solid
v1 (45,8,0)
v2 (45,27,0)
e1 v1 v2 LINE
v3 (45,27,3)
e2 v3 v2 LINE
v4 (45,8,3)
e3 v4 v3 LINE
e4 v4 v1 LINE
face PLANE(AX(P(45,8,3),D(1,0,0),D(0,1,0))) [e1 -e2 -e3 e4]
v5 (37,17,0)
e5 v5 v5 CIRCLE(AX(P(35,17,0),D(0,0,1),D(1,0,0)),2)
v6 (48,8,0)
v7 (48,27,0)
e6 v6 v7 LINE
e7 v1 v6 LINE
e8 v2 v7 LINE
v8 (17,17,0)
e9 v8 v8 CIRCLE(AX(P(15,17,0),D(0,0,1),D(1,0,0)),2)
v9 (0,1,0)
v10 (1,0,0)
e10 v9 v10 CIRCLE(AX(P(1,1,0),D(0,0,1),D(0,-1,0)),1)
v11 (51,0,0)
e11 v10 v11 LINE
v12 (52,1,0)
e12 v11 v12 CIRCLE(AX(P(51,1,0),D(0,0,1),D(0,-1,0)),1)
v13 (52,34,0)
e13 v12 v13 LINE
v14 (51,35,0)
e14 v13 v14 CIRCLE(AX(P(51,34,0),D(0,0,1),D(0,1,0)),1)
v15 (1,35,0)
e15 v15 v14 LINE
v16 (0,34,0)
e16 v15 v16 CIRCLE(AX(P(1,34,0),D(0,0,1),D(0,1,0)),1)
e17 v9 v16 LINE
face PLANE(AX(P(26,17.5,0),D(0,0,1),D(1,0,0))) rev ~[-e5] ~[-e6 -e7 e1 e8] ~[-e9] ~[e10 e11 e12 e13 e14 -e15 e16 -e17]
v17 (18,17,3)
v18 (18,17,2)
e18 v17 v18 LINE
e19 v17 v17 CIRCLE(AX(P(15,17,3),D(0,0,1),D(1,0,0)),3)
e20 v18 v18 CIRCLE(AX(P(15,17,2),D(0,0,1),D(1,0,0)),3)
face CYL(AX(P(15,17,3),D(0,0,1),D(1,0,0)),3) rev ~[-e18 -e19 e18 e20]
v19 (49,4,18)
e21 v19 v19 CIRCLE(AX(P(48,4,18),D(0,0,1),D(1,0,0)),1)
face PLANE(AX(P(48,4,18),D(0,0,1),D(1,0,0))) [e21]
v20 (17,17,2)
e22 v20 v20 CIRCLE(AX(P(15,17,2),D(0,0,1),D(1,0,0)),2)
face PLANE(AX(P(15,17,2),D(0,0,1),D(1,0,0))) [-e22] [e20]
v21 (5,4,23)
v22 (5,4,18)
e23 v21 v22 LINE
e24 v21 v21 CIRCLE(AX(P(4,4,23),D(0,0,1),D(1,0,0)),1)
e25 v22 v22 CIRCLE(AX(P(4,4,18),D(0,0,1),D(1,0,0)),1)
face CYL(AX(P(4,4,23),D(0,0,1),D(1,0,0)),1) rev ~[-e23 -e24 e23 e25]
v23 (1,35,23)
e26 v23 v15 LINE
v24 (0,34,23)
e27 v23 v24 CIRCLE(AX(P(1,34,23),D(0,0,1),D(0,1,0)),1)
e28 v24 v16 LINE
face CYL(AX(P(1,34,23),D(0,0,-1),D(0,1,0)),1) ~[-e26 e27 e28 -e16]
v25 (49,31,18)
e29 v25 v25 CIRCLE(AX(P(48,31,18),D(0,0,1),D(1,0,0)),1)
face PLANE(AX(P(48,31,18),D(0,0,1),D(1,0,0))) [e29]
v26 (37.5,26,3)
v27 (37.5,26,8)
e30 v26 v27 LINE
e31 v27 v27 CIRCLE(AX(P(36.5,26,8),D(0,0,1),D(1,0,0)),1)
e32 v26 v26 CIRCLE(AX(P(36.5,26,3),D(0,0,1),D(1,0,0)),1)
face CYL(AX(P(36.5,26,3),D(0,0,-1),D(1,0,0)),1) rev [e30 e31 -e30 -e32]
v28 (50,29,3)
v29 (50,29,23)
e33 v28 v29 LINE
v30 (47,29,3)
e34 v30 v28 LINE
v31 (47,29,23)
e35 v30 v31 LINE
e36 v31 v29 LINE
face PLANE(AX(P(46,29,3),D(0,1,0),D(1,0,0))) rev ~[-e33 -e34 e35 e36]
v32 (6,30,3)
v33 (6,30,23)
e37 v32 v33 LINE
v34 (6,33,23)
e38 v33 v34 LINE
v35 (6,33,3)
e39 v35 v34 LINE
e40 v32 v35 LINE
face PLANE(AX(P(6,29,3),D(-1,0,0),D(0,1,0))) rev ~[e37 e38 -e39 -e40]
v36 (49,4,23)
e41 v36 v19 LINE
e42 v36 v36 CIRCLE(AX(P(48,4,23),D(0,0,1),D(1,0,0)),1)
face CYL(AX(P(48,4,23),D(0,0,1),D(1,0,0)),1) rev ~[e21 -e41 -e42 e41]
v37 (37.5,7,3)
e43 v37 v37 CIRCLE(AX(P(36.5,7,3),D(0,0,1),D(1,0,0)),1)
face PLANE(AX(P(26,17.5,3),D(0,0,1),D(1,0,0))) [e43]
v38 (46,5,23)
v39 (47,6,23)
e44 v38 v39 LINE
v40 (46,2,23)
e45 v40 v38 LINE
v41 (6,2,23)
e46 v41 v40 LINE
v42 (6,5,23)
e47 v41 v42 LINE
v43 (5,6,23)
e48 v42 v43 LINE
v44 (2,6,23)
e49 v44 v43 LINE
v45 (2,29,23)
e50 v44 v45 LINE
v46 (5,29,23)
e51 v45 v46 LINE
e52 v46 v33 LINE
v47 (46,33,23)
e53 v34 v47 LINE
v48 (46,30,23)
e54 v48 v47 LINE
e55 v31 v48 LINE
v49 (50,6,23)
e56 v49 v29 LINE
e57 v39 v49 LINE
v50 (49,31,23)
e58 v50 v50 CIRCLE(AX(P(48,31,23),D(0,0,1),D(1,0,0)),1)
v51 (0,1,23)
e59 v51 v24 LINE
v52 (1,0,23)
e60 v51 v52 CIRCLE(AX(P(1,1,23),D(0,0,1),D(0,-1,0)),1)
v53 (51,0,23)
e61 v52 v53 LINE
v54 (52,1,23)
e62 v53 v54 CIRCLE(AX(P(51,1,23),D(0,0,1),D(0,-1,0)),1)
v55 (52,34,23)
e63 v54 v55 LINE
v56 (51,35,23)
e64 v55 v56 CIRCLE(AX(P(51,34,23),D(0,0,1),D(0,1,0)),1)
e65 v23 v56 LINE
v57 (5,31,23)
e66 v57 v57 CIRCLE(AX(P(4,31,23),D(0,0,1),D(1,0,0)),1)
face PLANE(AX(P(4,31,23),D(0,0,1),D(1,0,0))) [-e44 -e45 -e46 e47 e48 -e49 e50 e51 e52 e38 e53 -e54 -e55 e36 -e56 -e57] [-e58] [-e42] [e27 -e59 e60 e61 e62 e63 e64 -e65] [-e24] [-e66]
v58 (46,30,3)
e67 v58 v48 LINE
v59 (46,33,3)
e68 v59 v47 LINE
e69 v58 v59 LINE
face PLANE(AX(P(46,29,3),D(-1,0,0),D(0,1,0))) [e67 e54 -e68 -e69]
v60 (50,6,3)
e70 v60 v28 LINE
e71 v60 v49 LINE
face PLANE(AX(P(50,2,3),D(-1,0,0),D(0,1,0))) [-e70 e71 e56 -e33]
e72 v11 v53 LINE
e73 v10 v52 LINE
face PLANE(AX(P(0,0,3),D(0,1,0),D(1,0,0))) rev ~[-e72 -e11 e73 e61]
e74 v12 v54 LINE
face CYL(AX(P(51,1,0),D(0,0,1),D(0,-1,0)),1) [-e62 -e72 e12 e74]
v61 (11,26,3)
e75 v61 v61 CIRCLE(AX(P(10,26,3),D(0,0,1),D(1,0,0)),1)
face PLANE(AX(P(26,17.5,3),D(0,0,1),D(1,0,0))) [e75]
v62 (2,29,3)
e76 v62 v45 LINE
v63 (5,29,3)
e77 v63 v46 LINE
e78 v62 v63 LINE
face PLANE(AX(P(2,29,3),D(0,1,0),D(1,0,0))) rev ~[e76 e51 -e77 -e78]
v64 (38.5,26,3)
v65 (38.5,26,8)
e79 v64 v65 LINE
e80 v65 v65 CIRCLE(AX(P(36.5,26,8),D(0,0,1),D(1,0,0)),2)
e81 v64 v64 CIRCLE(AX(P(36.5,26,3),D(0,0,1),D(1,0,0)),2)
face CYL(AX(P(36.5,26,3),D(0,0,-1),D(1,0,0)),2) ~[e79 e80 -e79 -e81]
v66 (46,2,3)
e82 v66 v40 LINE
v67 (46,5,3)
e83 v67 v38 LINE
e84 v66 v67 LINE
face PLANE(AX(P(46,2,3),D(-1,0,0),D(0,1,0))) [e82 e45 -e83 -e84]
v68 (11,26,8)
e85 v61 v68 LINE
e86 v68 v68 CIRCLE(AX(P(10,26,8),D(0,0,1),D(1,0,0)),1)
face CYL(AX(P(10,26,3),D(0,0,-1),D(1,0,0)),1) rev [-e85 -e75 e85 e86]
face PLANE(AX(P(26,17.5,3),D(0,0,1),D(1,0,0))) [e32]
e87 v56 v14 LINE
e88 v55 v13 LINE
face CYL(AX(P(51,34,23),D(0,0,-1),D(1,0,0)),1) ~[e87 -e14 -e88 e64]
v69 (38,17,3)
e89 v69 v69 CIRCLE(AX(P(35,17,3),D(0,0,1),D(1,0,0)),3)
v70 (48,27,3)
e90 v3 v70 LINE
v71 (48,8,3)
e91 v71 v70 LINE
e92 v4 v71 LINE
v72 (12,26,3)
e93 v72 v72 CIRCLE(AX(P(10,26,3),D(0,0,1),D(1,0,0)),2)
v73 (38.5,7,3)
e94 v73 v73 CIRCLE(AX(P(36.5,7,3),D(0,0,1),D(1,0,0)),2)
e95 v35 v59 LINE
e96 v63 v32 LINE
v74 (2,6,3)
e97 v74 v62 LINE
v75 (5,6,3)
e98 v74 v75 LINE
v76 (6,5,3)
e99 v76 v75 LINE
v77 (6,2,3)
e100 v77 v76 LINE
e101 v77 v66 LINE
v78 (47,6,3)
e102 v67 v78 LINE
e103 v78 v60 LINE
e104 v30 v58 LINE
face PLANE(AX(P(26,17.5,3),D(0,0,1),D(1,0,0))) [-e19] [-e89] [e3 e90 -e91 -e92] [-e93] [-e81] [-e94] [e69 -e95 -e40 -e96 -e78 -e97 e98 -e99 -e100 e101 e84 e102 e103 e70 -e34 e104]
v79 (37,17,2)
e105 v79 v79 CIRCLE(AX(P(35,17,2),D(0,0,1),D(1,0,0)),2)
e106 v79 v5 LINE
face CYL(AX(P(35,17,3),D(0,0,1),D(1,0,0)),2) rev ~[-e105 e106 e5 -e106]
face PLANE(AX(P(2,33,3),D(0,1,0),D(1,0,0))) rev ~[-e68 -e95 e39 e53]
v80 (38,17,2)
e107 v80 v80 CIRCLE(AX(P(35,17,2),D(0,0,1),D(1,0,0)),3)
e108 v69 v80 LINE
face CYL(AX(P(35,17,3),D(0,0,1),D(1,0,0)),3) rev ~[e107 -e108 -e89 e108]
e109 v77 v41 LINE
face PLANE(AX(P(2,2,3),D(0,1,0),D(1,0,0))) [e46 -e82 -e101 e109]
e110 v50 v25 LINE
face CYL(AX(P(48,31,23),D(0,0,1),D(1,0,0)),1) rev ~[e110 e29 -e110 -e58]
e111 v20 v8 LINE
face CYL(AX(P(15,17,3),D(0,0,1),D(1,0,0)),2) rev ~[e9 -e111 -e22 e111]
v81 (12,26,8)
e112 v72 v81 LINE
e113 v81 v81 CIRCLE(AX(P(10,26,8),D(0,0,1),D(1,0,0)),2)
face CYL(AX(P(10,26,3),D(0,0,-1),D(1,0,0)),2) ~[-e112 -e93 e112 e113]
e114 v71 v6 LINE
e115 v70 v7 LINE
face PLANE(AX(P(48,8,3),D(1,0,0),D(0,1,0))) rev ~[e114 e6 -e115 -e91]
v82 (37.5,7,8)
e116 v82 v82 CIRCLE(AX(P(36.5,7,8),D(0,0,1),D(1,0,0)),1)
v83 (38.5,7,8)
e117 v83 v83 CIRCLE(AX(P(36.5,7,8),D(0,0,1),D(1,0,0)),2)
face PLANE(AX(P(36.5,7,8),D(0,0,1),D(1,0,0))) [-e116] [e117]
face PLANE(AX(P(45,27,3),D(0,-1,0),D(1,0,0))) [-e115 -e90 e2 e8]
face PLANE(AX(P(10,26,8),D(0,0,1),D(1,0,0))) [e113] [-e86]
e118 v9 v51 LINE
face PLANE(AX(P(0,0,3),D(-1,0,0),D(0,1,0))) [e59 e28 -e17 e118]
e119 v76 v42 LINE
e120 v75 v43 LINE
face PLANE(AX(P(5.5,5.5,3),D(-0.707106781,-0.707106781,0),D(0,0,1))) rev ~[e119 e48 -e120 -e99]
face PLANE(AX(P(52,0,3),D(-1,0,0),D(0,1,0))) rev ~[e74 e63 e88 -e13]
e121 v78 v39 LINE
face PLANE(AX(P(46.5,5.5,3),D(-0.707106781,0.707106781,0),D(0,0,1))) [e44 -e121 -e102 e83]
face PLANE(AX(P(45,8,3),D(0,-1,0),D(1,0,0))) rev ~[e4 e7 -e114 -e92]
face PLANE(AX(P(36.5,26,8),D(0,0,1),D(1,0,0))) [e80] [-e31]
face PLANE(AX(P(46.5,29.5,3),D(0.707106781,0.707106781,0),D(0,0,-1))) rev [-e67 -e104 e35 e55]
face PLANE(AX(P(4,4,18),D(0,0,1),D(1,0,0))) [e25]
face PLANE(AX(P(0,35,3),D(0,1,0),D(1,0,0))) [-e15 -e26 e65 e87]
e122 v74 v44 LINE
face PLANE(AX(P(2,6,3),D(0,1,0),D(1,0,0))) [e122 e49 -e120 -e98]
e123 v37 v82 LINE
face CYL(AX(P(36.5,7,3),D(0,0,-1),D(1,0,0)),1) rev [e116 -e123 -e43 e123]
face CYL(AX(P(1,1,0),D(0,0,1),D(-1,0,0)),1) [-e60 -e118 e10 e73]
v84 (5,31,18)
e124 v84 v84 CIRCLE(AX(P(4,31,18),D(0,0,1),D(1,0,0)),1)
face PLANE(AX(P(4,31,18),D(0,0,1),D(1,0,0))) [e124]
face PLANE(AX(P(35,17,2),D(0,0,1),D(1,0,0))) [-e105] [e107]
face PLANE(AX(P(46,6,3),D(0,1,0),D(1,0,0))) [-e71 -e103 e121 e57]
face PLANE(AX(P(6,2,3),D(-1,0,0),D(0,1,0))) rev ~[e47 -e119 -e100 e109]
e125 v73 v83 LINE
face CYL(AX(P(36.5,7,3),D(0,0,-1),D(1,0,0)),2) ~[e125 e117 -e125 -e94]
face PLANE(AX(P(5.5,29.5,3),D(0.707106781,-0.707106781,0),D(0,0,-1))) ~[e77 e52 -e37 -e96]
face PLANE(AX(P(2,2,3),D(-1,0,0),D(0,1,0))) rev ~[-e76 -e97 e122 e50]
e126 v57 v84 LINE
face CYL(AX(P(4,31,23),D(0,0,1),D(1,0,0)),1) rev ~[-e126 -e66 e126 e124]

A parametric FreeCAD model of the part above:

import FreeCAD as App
import Part
import Sketcher

V = App.Vector


def edges_at(feature, points):
    """Names of the edges that pass closest to the given points."""
    edges = feature.Shape.Edges
    near = lambda p: min(range(len(edges)), key=lambda i: edges[i].distToShape(Part.Vertex(*p))[0])
    return sorted({f"Edge{near(p) + 1}" for p in points})


def add_polygon(sketch, points):
    """Adds a closed chain of lines whose ends are joined by coincident constraints."""
    first, n = sketch.GeometryCount, len(points)
    for a, b in zip(points, points[1:] + points[:1]):
        sketch.addGeometry(Part.LineSegment(App.Vector(*a, 0), App.Vector(*b, 0)), False)
    for i in range(n):
        sketch.addConstraint(Sketcher.Constraint("Coincident", first + i, 2, first + (i + 1) % n, 1))

doc = App.newDocument("Part")
body = doc.addObject("PartDesign::Body", "Body")

# Sketch on XY plane
sketch1 = body.newObject("Sketcher::SketchObject", "Sketch")
sketch1.AttachmentSupport = (doc.getObject("XY_Plane"), [""])
sketch1.MapMode = "FlatFace"
add_polygon(sketch1, [(0, 35), (0, 0), (52, 0), (52, 35)])  # lines 0-3
sketch1.addConstraint([
    Sketcher.Constraint("Vertical", 0),
    Sketcher.Constraint("Horizontal", 1),
    Sketcher.Constraint("Vertical", 2),
    Sketcher.Constraint("Horizontal", 3),
    Sketcher.Constraint("Coincident", 0, 2, -1, 1),
    Sketcher.Constraint("DistanceX", 1, 1, 1, 2, 52.0),
    Sketcher.Constraint("DistanceY", 0, 2, 0, 1, 35.0),
])
pad1 = body.newObject("PartDesign::Pad", "Pad")
pad1.Profile = sketch1
pad1.Length = 3

# Sketch on XY plane
sketch2 = body.newObject("Sketcher::SketchObject", "Sketch001")
sketch2.AttachmentSupport = (doc.getObject("XY_Plane"), [""])
sketch2.MapMode = "FlatFace"
sketch2.AttachmentOffset = App.Placement(V(0, 0, 3), App.Rotation())
add_polygon(sketch2, [(0, 35), (0, 0), (52, 0), (52, 35)])  # lines 0-3
add_polygon(sketch2, [(50, 2), (2, 2), (2, 33), (50, 33)])  # lines 4-7
sketch2.addConstraint([
    Sketcher.Constraint("Vertical", 0),
    Sketcher.Constraint("Horizontal", 1),
    Sketcher.Constraint("Vertical", 2),
    Sketcher.Constraint("Horizontal", 3),
    Sketcher.Constraint("Horizontal", 4),
    Sketcher.Constraint("Vertical", 5),
    Sketcher.Constraint("Horizontal", 6),
    Sketcher.Constraint("Vertical", 7),
    Sketcher.Constraint("Coincident", 0, 2, -1, 1),
    Sketcher.Constraint("DistanceX", 1, 1, 1, 2, 52.0),
    Sketcher.Constraint("DistanceX", 4, 2, 4, 1, 48.0),
    Sketcher.Constraint("DistanceY", 0, 2, 0, 1, 35.0),
    Sketcher.Constraint("DistanceY", 5, 1, 5, 2, 31.0),
    Sketcher.Constraint("DistanceX", -1, 1, 4, 2, 2.0),
    Sketcher.Constraint("DistanceY", -1, 1, 4, 2, 2.0),
])
pad2 = body.newObject("PartDesign::Pad", "Pad001")
pad2.Profile = sketch2
pad2.Length = 20

# Sketch on XY plane
sketch3 = body.newObject("Sketcher::SketchObject", "Sketch002")
sketch3.AttachmentSupport = (doc.getObject("XY_Plane"), [""])
sketch3.MapMode = "FlatFace"
sketch3.AttachmentOffset = App.Placement(V(0, 0, 3), App.Rotation())
add_polygon(sketch3, [(2, 33), (2, 29), (6, 29), (6, 33)])  # lines 0-3
add_polygon(sketch3, [(46, 33), (46, 29), (50, 29), (50, 33)])  # lines 4-7
add_polygon(sketch3, [(2, 6), (2, 2), (6, 2), (6, 6)])  # lines 8-11
add_polygon(sketch3, [(46, 6), (46, 2), (50, 2), (50, 6)])  # lines 12-15
sketch3.addConstraint([
    Sketcher.Constraint("Vertical", 0),
    Sketcher.Constraint("Horizontal", 1),
    Sketcher.Constraint("Vertical", 2),
    Sketcher.Constraint("Horizontal", 3),
    Sketcher.Constraint("Vertical", 4),
    Sketcher.Constraint("Horizontal", 5),
    Sketcher.Constraint("Vertical", 6),
    Sketcher.Constraint("Horizontal", 7),
    Sketcher.Constraint("Vertical", 8),
    Sketcher.Constraint("Horizontal", 9),
    Sketcher.Constraint("Vertical", 10),
    Sketcher.Constraint("Horizontal", 11),
    Sketcher.Constraint("Vertical", 12),
    Sketcher.Constraint("Horizontal", 13),
    Sketcher.Constraint("Vertical", 14),
    Sketcher.Constraint("Horizontal", 15),
    Sketcher.Constraint("Horizontal", 1, 2, 4, 2),
    Sketcher.Constraint("Horizontal", 3, 2, 6, 2),
    Sketcher.Constraint("Horizontal", 9, 2, 12, 2),
    Sketcher.Constraint("Horizontal", 11, 2, 14, 2),
    Sketcher.Constraint("Vertical", 3, 2, 8, 2),
    Sketcher.Constraint("Vertical", 2, 2, 9, 2),
    Sketcher.Constraint("Vertical", 7, 2, 12, 2),
    Sketcher.Constraint("Vertical", 6, 2, 13, 2),
    Sketcher.Constraint("Equal", 3, 5),
    Sketcher.Constraint("Equal", 15, 0),
    Sketcher.Constraint("Equal", 6, 8),
    Sketcher.Constraint("DistanceX", 1, 1, 1, 2, 4.0),
    Sketcher.Constraint("DistanceX", -1, 1, 0, 2, 2.0),
    Sketcher.Constraint("DistanceY", -1, 1, 0, 2, 29.0),
    Sketcher.Constraint("DistanceX", -1, 1, 4, 2, 46.0),
    Sketcher.Constraint("DistanceY", -1, 1, 8, 2, 2.0),
])
pad3 = body.newObject("PartDesign::Pad", "Pad002")
pad3.Profile = sketch3
pad3.Length = 20

# Sketch on XY plane
sketch4 = body.newObject("Sketcher::SketchObject", "Sketch003")
sketch4.AttachmentSupport = (doc.getObject("XY_Plane"), [""])
sketch4.MapMode = "FlatFace"
sketch4.AttachmentOffset = App.Placement(V(0, 0, 3), App.Rotation())
sketch4.addGeometry([
    Part.Circle(V(36.5, 26, 0), V(0, 0, 1), 2),  # 0
    Part.Circle(V(36.5, 26, 0), V(0, 0, 1), 1),  # 1
    Part.Circle(V(36.5, 7, 0), V(0, 0, 1), 2),  # 2
    Part.Circle(V(36.5, 7, 0), V(0, 0, 1), 1),  # 3
    Part.Circle(V(10, 26, 0), V(0, 0, 1), 2),  # 4
    Part.Circle(V(10, 26, 0), V(0, 0, 1), 1),  # 5
], False)
sketch4.addConstraint([
    Sketcher.Constraint("Coincident", 1, 3, 0, 3),
    Sketcher.Constraint("Coincident", 3, 3, 2, 3),
    Sketcher.Constraint("Coincident", 5, 3, 4, 3),
    Sketcher.Constraint("Equal", 0, 2),
    Sketcher.Constraint("Equal", 1, 3),
    Sketcher.Constraint("Equal", 2, 4),
    Sketcher.Constraint("Equal", 3, 5),
    Sketcher.Constraint("Horizontal", 1, 3, 4, 3),
    Sketcher.Constraint("Vertical", 1, 3, 2, 3),
    Sketcher.Constraint("Diameter", 0, 4.0),
    Sketcher.Constraint("Diameter", 1, 2.0),
    Sketcher.Constraint("DistanceY", -1, 1, 0, 3, 26.0),
    Sketcher.Constraint("DistanceY", -1, 1, 2, 3, 7.0),
    Sketcher.Constraint("DistanceX", -1, 1, 4, 3, 10.0),
    Sketcher.Constraint("DistanceX", -1, 1, 0, 3, 36.5),
])
pad4 = body.newObject("PartDesign::Pad", "Pad003")
pad4.Profile = sketch4
pad4.Length = 5

# Sketch on XY plane
sketch5 = body.newObject("Sketcher::SketchObject", "Sketch004")
sketch5.AttachmentSupport = (doc.getObject("XY_Plane"), [""])
sketch5.MapMode = "FlatFace"
sketch5.AttachmentOffset = App.Placement(V(0, 0, 3), App.Rotation())
add_polygon(sketch5, [(45, 27), (45, 8), (48, 8), (48, 27)])  # lines 0-3
sketch5.addConstraint([
    Sketcher.Constraint("Vertical", 0),
    Sketcher.Constraint("Horizontal", 1),
    Sketcher.Constraint("Vertical", 2),
    Sketcher.Constraint("Horizontal", 3),
    Sketcher.Constraint("DistanceX", 1, 1, 1, 2, 3.0),
    Sketcher.Constraint("DistanceY", 0, 2, 0, 1, 19.0),
    Sketcher.Constraint("DistanceX", -1, 1, 0, 2, 45.0),
    Sketcher.Constraint("DistanceY", -1, 1, 0, 2, 8.0),
])
pocket1 = body.newObject("PartDesign::Pocket", "Pocket")
pocket1.Profile = sketch5
pocket1.Length = 3

# Sketch on XY plane
sketch6 = body.newObject("Sketcher::SketchObject", "Sketch005")
sketch6.AttachmentSupport = (doc.getObject("XY_Plane"), [""])
sketch6.MapMode = "FlatFace"
sketch6.AttachmentOffset = App.Placement(V(0, 0, 23), App.Rotation())
sketch6.addGeometry([
    Part.Circle(V(4, 31, 0), V(0, 0, 1), 1),
    Part.Circle(V(48, 31, 0), V(0, 0, 1), 1),
    Part.Circle(V(4, 4, 0), V(0, 0, 1), 1),
    Part.Circle(V(48, 4, 0), V(0, 0, 1), 1),
], False)
sketch6.addConstraint([
    Sketcher.Constraint("Equal", 0, 1),
    Sketcher.Constraint("Equal", 1, 2),
    Sketcher.Constraint("Equal", 2, 3),
    Sketcher.Constraint("Horizontal", 0, 3, 1, 3),
    Sketcher.Constraint("Horizontal", 2, 3, 3, 3),
    Sketcher.Constraint("Vertical", 0, 3, 2, 3),
    Sketcher.Constraint("Vertical", 1, 3, 3, 3),
    Sketcher.Constraint("Diameter", 0, 2.0),
    Sketcher.Constraint("DistanceX", -1, 1, 0, 3, 4.0),
    Sketcher.Constraint("DistanceY", -1, 1, 0, 3, 31.0),
    Sketcher.Constraint("DistanceX", -1, 1, 1, 3, 48.0),
    Sketcher.Constraint("DistanceY", -1, 1, 2, 3, 4.0),
])
pocket2 = body.newObject("PartDesign::Pocket", "Pocket001")
pocket2.Profile = sketch6
pocket2.Length = 5
doc.recompute()

fillet = body.newObject("PartDesign::Fillet", "Fillet")
fillet.Base = (pocket2, edges_at(pocket2, [(0, 0, 11.5)]))
fillet.Radius = 1
doc.recompute()

fillet2 = body.newObject("PartDesign::Fillet", "Fillet001")
fillet2.Base = (fillet, edges_at(fillet, [(52, 0, 11.5)]))
fillet2.Radius = 1
doc.recompute()

fillet3 = body.newObject("PartDesign::Fillet", "Fillet002")
fillet3.Base = (fillet2, edges_at(fillet2, [(52, 35, 11.5)]))
fillet3.Radius = 1
doc.recompute()

fillet4 = body.newObject("PartDesign::Fillet", "Fillet003")
fillet4.Base = (fillet3, edges_at(fillet3, [(0, 35, 11.5)]))
fillet4.Radius = 1
doc.recompute()

chamfer = body.newObject("PartDesign::Chamfer", "Chamfer")
chamfer.Base = (fillet4, edges_at(fillet4, [(46, 6, 13)]))
chamfer.Size = 1
doc.recompute()

chamfer2 = body.newObject("PartDesign::Chamfer", "Chamfer001")
chamfer2.Base = (chamfer, edges_at(chamfer, [(46, 29, 13)]))
chamfer2.Size = 1
doc.recompute()

chamfer3 = body.newObject("PartDesign::Chamfer", "Chamfer002")
chamfer3.Base = (chamfer2, edges_at(chamfer2, [(6, 6, 13)]))
chamfer3.Size = 1
doc.recompute()

chamfer4 = body.newObject("PartDesign::Chamfer", "Chamfer003")
chamfer4.Base = (chamfer3, edges_at(chamfer3, [(6, 29, 13)]))
chamfer4.Size = 1

# Sketch on XY plane
sketch7 = body.newObject("Sketcher::SketchObject", "Sketch006")
sketch7.AttachmentSupport = (doc.getObject("XY_Plane"), [""])
sketch7.MapMode = "FlatFace"
sketch7.AttachmentOffset = App.Placement(V(0, 0, 3), App.Rotation())
sketch7.addGeometry([
    Part.Circle(V(15, 17, 0), V(0, 0, 1), 2),
    Part.Circle(V(35, 17, 0), V(0, 0, 1), 2),
], False)
sketch7.addConstraint([
    Sketcher.Constraint("Equal", 0, 1),
    Sketcher.Constraint("Horizontal", 0, 3, 1, 3),
    Sketcher.Constraint("Diameter", 0, 4.0),
    Sketcher.Constraint("DistanceX", -1, 1, 0, 3, 15.0),
    Sketcher.Constraint("DistanceY", -1, 1, 0, 3, 17.0),
    Sketcher.Constraint("DistanceX", -1, 1, 1, 3, 35.0),
])
pocket3 = body.newObject("PartDesign::Pocket", "Pocket002")
pocket3.Profile = sketch7
pocket3.Length = 5

# Sketch on XY plane
sketch8 = body.newObject("Sketcher::SketchObject", "Sketch007")
sketch8.AttachmentSupport = (doc.getObject("XY_Plane"), [""])
sketch8.MapMode = "FlatFace"
sketch8.AttachmentOffset = App.Placement(V(0, 0, 3), App.Rotation())
sketch8.addGeometry([
    Part.Circle(V(15, 17, 0), V(0, 0, 1), 3),
    Part.Circle(V(35, 17, 0), V(0, 0, 1), 3),
], False)
sketch8.addConstraint([
    Sketcher.Constraint("Equal", 0, 1),
    Sketcher.Constraint("Horizontal", 0, 3, 1, 3),
    Sketcher.Constraint("Diameter", 0, 6.0),
    Sketcher.Constraint("DistanceX", -1, 1, 0, 3, 15.0),
    Sketcher.Constraint("DistanceY", -1, 1, 0, 3, 17.0),
    Sketcher.Constraint("DistanceX", -1, 1, 1, 3, 35.0),
])
pocket4 = body.newObject("PartDesign::Pocket", "Pocket003")
pocket4.Profile = sketch8
pocket4.Length = 1

doc.recompute()
